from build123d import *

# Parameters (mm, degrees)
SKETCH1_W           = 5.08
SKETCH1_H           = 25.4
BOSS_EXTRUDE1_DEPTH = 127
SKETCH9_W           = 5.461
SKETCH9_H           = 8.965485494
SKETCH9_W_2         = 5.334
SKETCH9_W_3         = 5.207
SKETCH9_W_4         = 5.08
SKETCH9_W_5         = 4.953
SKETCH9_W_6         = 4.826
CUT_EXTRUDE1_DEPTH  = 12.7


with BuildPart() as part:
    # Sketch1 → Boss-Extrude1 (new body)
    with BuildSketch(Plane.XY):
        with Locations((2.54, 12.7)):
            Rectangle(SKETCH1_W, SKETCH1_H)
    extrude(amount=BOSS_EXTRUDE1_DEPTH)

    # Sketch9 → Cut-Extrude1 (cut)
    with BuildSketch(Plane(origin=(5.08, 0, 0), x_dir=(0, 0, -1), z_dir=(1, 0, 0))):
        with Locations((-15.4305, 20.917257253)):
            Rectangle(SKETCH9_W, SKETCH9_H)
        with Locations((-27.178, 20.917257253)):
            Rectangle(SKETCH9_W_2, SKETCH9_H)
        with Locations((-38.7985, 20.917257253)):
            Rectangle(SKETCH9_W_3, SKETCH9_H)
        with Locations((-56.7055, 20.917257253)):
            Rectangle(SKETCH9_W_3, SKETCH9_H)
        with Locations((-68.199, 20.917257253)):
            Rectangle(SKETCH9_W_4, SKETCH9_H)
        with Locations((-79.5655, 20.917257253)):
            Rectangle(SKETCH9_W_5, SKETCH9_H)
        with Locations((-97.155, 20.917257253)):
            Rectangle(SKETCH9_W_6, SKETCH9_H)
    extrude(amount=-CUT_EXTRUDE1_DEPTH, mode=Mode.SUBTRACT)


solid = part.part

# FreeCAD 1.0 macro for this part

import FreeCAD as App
import Part
import Sketcher
from FreeCAD import Vector
Q = App.Units.Quantity


def add_polygon(sketch, points):
    """Adds a closed chain of lines whose ends are joined by coincident constraints."""
    first, n = sketch.GeometryCount, len(points)
    for a, b in zip(points, points[1:] + points[:1]):
        sketch.addGeometry(Part.LineSegment(App.Vector(*a, 0), App.Vector(*b, 0)), False)
    for i in range(n):
        sketch.addConstraint(Sketcher.Constraint("Coincident", first + i, 2, first + (i + 1) % n, 1))

doc = App.newDocument("Part")
params = doc.addObject("Spreadsheet::Sheet", "Params")
for row, (alias, value) in enumerate([
    ("sketch1_height", "1 in"),
    ("sketch1_width", "0.2 in"),
    ("pad1_length", "5 in"),
    ("sketch2_height", "0.2 in"),
    ("sketch2_height2", "0.21 in"),
    ("sketch2_height3", "0.19 in"),
    ("sketch2_height4", "0.215 in"),
    ("sketch2_height5", "0.205 in"),
    ("pocket1_length", "0.5 in"),
], start=1):
    params.set(f"A{row}", alias)
    params.set(f"B{row}", "=" + value)
    params.setAlias(f"B{row}", alias)

body = doc.addObject("PartDesign::Body", "Body")

sketch1 = body.newObject("Sketcher::SketchObject", "Sketch")
sketch1.AttachmentSupport = (doc.getObject("XY_Plane"), [""])
sketch1.MapMode = "FlatFace"
add_polygon(sketch1, [(0, 25), (0, 0), (5, 0), (5, 25)])
sketch1.addConstraint([
    Sketcher.Constraint("Vertical", 0),
    Sketcher.Constraint("Horizontal", 1),
    Sketcher.Constraint("Vertical", 2),
    Sketcher.Constraint("Horizontal", 3),
    Sketcher.Constraint("Coincident", 0, 2, -1, 1),
    Sketcher.Constraint("DistanceY", 0, 2, 0, 1, Q("1 in")),
    Sketcher.Constraint("DistanceX", 1, 1, 1, 2, Q("0.2 in")),
])
sketch1.setExpression("Constraints[9]", "Params.sketch1_height")
sketch1.setExpression("Constraints[10]", "Params.sketch1_width")
pad1 = body.newObject("PartDesign::Pad", "Pad")
pad1.Profile = sketch1
pad1.setExpression("Length", "Params.pad1_length")

sketch2 = body.newObject("Sketcher::SketchObject", "Sketch001")
sketch2.AttachmentSupport = (doc.getObject("YZ_Plane"), [""])
sketch2.MapMode = "FlatFace"
sketch2.AttachmentOffset = App.Placement(Vector(0, 0, 0.2 * 25.4), App.Rotation())
add_polygon(sketch2, [(25.4, 18.2), (16.4, 18.2), (16.4, 12.7), (25.4, 12.7)])
add_polygon(sketch2, [(25.4, 29.8), (16.4, 29.8), (16.4, 24.5), (25.4, 24.5)])
add_polygon(sketch2, [(25.4, 41.4), (16.4, 41.4), (16.4, 36.2), (25.4, 36.2)])
add_polygon(sketch2, [(25.4, 59.3), (16.4, 59.3), (16.4, 54.1), (25.4, 54.1)])
add_polygon(sketch2, [(25.4, 70.7), (16.4, 70.7), (16.4, 65.7), (25.4, 65.7)])
add_polygon(sketch2, [(25.4, 82), (16.4, 82), (16.4, 77.1), (25.4, 77.1)])
add_polygon(sketch2, [(25.4, 99.6), (16.4, 99.6), (16.4, 94.7), (25.4, 94.7)])
sketch2.addConstraint([
    Sketcher.Constraint("Horizontal", 0),
    Sketcher.Constraint("Vertical", 1),
    Sketcher.Constraint("Horizontal", 2),
    Sketcher.Constraint("Vertical", 3),
    Sketcher.Constraint("Horizontal", 4),
    Sketcher.Constraint("Vertical", 5),
    Sketcher.Constraint("Horizontal", 6),
    Sketcher.Constraint("Vertical", 7),
    Sketcher.Constraint("Horizontal", 8),
    Sketcher.Constraint("Vertical", 9),
    Sketcher.Constraint("Horizontal", 10),
    Sketcher.Constraint("Vertical", 11),
    Sketcher.Constraint("Horizontal", 12),
    Sketcher.Constraint("Vertical", 13),
    Sketcher.Constraint("Horizontal", 14),
    Sketcher.Constraint("Vertical", 15),
    Sketcher.Constraint("Horizontal", 16),
    Sketcher.Constraint("Vertical", 17),
    Sketcher.Constraint("Horizontal", 18),
    Sketcher.Constraint("Vertical", 19),
    Sketcher.Constraint("Horizontal", 20),
    Sketcher.Constraint("Vertical", 21),
    Sketcher.Constraint("Horizontal", 22),
    Sketcher.Constraint("Vertical", 23),
    Sketcher.Constraint("Horizontal", 24),
    Sketcher.Constraint("Vertical", 25),
    Sketcher.Constraint("Horizontal", 26),
    Sketcher.Constraint("Vertical", 27),
    Sketcher.Constraint("Vertical", 1, 2, 4, 2),
    Sketcher.Constraint("Vertical", 3, 2, 6, 2),
    Sketcher.Constraint("Vertical", 5, 2, 8, 2),
    Sketcher.Constraint("Vertical", 7, 2, 10, 2),
    Sketcher.Constraint("Vertical", 9, 2, 12, 2),
    Sketcher.Constraint("Vertical", 11, 2, 14, 2),
    Sketcher.Constraint("Vertical", 13, 2, 16, 2),
    Sketcher.Constraint("Vertical", 15, 2, 18, 2),
    Sketcher.Constraint("Vertical", 17, 2, 20, 2),
    Sketcher.Constraint("Vertical", 19, 2, 22, 2),
    Sketcher.Constraint("Vertical", 21, 2, 24, 2),
    Sketcher.Constraint("Vertical", 23, 2, 26, 2),
    Sketcher.Constraint("Equal", 11, 13),
    Sketcher.Constraint("DistanceY", 17, 2, 17, 1, Q("0.2 in")),
    Sketcher.Constraint("DistanceX", -1, 1, 2, 2, Q("1 in")),
    Sketcher.Constraint("DistanceY", 5, 2, 5, 1, Q("0.21 in")),
    Sketcher.Constraint("DistanceY", 25, 2, 25, 1, Q("0.19 in")),
    Sketcher.Constraint("DistanceY", -1, 1, 1, 2, Q("0.5 in")),
    Sketcher.Constraint("DistanceY", 8, 2, 13, 2, Q("0.5 in")),
    Sketcher.Constraint("DistanceY", 20, 2, 25, 2, Q("0.5 in")),
    Sketcher.Constraint("DistanceY", 1, 2, 1, 1, Q("0.215 in")),
    Sketcher.Constraint("DistanceY", 9, 2, 9, 1, Q("0.205 in")),
    Sketcher.Constraint("DistanceY", 21, 2, 21, 1, Q("0.195 in")),
    Sketcher.Constraint("DistanceY", -1, 1, 8, 2, Q("1.63 in")),
    Sketcher.Constraint("DistanceY", -1, 1, 20, 2, Q("3.23 in")),
    Sketcher.Constraint("DistanceY", 0, 2, 4, 2, Q("0.46 in")),
    Sketcher.Constraint("DistanceY", 12, 2, 16, 2, Q("0.45 in")),
    Sketcher.Constraint("DistanceX", 0, 2, 0, 1, Q("8.965485 mm")),
])
sketch2.setExpression("Constraints[69]", "Params.sketch2_height")
sketch2.setExpression("Constraints[71]", "Params.sketch2_height2")
sketch2.setExpression("Constraints[72]", "Params.sketch2_height3")
sketch2.setExpression("Constraints[76]", "Params.sketch2_height4")
sketch2.setExpression("Constraints[77]", "Params.sketch2_height5")
pocket1 = body.newObject("PartDesign::Pocket", "Pocket")
pocket1.Profile = sketch2
pocket1.setExpression("Length", "Params.pocket1_length")

doc.recompute()
